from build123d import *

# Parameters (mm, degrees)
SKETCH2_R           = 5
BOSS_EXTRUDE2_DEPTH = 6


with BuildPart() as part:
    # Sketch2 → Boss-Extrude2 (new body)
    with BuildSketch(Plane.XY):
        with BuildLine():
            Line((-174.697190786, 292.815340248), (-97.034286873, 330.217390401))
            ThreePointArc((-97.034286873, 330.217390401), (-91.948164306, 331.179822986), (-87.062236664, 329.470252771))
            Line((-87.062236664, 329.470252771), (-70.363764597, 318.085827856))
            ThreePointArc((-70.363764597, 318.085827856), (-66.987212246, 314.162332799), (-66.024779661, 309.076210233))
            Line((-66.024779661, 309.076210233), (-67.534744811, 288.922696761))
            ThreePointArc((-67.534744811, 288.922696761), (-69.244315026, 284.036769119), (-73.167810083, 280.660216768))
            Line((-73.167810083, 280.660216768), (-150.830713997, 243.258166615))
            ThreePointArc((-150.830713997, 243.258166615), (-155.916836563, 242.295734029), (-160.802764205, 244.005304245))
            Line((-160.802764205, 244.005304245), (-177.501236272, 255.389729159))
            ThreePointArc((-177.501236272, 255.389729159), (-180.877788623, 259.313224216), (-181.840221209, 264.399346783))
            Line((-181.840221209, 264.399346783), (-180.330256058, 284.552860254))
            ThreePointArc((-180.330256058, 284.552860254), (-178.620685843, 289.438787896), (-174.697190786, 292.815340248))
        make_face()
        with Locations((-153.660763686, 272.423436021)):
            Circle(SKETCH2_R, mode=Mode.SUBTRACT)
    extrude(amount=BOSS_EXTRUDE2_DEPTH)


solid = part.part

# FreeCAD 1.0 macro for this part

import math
import FreeCAD as App
import Part
import Sketcher
Q = App.Units.Quantity

doc = App.newDocument("Part")
body = doc.addObject("PartDesign::Body", "Body")

# Sketch on XY plane
sketch1 = body.newObject("Sketcher::SketchObject", "Sketch")
sketch1.AttachmentSupport = (doc.getObject("XY_Plane"), [""])
sketch1.MapMode = "FlatFace"
sketch1.addGeometry([
    Part.LineSegment(App.Vector(-97.034287, 330.21739, 0), App.Vector(-174.697191, 292.81534, 0)),  # 0
    Part.ArcOfCircle(Part.Circle(App.Vector(-170.358206, 283.805723, 0), App.Vector(0, 0, 1), 10), math.radians(115.715224), math.radians(175.715224)),  # 1
    Part.LineSegment(App.Vector(-180.330256, 284.55286, 0), App.Vector(-181.840221, 264.399347, 0)),  # 2
    Part.ArcOfCircle(Part.Circle(App.Vector(-171.868171, 263.652209, 0), App.Vector(0, 0, 1), 10), math.radians(175.715224), math.radians(235.715224)),  # 3
    Part.LineSegment(App.Vector(-177.501236, 255.389729, 0), App.Vector(-160.802764, 244.005304, 0)),  # 4
    Part.ArcOfCircle(Part.Circle(App.Vector(-155.169699, 252.267784, 0), App.Vector(0, 0, 1), 10), math.radians(-124.284776), math.radians(-64.284776)),  # 5
    Part.LineSegment(App.Vector(-150.830714, 243.258167, 0), App.Vector(-73.16781, 280.660217, 0)),  # 6
    Part.ArcOfCircle(Part.Circle(App.Vector(-77.506795, 289.669834, 0), App.Vector(0, 0, 1), 10), math.radians(-64.284776), math.radians(-4.284776)),  # 7
    Part.LineSegment(App.Vector(-67.534745, 288.922697, 0), App.Vector(-66.02478, 309.07621, 0)),  # 8
    Part.ArcOfCircle(Part.Circle(App.Vector(-75.99683, 309.823348, 0), App.Vector(0, 0, 1), 10), math.radians(-4.284776), math.radians(55.715224)),  # 9
    Part.LineSegment(App.Vector(-70.363765, 318.085828, 0), App.Vector(-87.062237, 329.470253, 0)),  # 10
    Part.ArcOfCircle(Part.Circle(App.Vector(-92.695302, 321.207773, 0), App.Vector(0, 0, 1), 10), math.radians(55.715224), math.radians(115.715224)),  # 11
    Part.Circle(App.Vector(-153.660764, 272.423436, 0), App.Vector(0, 0, 1), 5),  # 12
], False)
sketch1.addConstraint([
    Sketcher.Constraint("Tangent", 0, 2, 1, 1),
    Sketcher.Constraint("Tangent", 1, 2, 2, 1),
    Sketcher.Constraint("Tangent", 2, 2, 3, 1),
    Sketcher.Constraint("Tangent", 3, 2, 4, 1),
    Sketcher.Constraint("Tangent", 4, 2, 5, 1),
    Sketcher.Constraint("Tangent", 5, 2, 6, 1),
    Sketcher.Constraint("Tangent", 6, 2, 7, 1),
    Sketcher.Constraint("Tangent", 7, 2, 8, 1),
    Sketcher.Constraint("Tangent", 8, 2, 9, 1),
    Sketcher.Constraint("Tangent", 9, 2, 10, 1),
    Sketcher.Constraint("Tangent", 10, 2, 11, 1),
    Sketcher.Constraint("Tangent", 11, 2, 0, 1),
    Sketcher.Constraint("Equal", 1, 3),
    Sketcher.Constraint("Equal", 3, 5),
    Sketcher.Constraint("Equal", 5, 7),
    Sketcher.Constraint("Equal", 7, 9),
    Sketcher.Constraint("Equal", 9, 11),
    Sketcher.Constraint("Parallel", 0, 6),
    Sketcher.Constraint("Parallel", 2, 8),
    Sketcher.Constraint("Parallel", 4, 10),
    Sketcher.Constraint("Equal", 2, 4),
    Sketcher.Constraint("Equal", 0, 6),
    Sketcher.Constraint("Diameter", 12, Q("10 mm")),
    Sketcher.Constraint("Radius", 1, Q("10 mm")),
    Sketcher.Constraint("Distance", 0, Q("86.2 mm")),
    Sketcher.Constraint("Distance", 2, Q("20.21 mm")),
    Sketcher.Constraint("DistanceX", 4, 2, 12, 3, Q("7.142001 mm")),
    Sketcher.Constraint("DistanceX", 5, 3, -1, 1, Q("155.169699 mm")),
    Sketcher.Constraint("DistanceX", 11, 3, -1, 1, Q("92.695302 mm")),
    Sketcher.Constraint("DistanceY", 12, 3, 7, 3, Q("17.246398 mm")),
    Sketcher.Constraint("DistanceX", 3, 3, -1, 1, Q("171.868171 mm")),
    Sketcher.Constraint("DistanceY", -1, 1, 3, 3, Q("263.652209 mm")),
    Sketcher.Constraint("DistanceX", 0, 2, -1, 1, Q("174.697191 mm")),
])
pad1 = body.newObject("PartDesign::Pad", "Pad")
pad1.Profile = sketch1
pad1.Length = 6

doc.recompute()
